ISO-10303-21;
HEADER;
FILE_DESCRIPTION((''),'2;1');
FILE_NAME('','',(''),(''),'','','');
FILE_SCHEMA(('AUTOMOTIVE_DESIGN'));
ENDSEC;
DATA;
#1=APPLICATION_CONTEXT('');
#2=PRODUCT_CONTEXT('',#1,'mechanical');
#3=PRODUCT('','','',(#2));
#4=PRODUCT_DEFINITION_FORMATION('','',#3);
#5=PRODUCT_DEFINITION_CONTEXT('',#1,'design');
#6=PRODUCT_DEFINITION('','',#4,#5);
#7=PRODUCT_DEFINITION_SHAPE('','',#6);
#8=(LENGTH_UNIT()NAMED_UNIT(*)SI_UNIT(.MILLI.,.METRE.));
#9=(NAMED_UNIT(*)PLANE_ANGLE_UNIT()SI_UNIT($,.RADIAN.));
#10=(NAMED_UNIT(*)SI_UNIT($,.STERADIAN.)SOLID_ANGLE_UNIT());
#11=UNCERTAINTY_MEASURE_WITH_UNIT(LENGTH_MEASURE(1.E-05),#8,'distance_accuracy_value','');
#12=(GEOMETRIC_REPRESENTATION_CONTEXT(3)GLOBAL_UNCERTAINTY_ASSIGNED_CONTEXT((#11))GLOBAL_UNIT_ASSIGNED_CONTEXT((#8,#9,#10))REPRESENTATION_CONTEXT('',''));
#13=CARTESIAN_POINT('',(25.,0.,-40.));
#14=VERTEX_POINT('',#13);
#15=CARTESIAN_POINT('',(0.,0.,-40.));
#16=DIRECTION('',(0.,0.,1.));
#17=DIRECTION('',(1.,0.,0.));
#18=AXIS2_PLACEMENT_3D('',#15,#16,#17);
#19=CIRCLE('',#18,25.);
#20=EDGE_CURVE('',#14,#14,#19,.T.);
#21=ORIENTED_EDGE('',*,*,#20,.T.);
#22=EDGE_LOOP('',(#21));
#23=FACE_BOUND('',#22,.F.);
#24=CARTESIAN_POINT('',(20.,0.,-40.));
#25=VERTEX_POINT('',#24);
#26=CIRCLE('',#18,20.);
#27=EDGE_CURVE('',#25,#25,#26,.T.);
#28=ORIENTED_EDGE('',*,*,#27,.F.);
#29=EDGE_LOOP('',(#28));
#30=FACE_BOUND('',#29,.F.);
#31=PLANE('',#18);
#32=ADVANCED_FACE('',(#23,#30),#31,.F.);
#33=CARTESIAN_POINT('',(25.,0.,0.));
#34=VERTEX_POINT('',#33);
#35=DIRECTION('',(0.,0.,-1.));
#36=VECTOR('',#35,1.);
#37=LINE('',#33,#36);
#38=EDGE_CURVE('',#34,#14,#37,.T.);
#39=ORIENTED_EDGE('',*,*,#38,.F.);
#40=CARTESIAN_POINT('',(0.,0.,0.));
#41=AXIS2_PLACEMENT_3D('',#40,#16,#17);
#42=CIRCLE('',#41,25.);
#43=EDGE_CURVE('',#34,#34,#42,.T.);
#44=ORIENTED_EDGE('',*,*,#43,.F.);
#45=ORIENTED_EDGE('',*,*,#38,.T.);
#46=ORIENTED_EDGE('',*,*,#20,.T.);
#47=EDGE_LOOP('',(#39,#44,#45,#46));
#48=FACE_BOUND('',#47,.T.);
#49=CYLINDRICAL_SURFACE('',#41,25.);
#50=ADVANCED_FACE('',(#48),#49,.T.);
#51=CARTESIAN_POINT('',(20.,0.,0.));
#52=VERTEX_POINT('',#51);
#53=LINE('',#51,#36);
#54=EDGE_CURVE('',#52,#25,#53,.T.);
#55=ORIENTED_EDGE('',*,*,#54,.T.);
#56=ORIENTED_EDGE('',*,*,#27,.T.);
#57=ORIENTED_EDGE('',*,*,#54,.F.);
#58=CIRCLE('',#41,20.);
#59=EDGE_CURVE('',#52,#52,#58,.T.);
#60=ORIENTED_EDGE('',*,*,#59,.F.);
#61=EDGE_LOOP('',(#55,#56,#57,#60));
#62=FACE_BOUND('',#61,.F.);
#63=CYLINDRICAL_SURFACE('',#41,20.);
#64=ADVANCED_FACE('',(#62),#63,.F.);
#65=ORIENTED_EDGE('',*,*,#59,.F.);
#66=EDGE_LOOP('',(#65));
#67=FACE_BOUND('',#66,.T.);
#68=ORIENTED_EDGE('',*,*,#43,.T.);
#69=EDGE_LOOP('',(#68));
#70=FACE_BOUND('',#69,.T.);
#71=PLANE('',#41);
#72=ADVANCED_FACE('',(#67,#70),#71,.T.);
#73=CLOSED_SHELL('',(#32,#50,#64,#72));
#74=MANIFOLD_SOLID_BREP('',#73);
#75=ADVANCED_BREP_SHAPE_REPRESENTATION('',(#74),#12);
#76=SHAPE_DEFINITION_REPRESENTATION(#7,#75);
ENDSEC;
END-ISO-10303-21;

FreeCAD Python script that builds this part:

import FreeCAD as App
import Part
import Sketcher

V = App.Vector

doc = App.newDocument("Part")
body = doc.addObject("PartDesign::Body", "Body")

# Sketch on XY plane
sketch1 = doc.addObject("Sketcher::SketchObject", "Sketch")
body.addObject(sketch1)
sketch1.AttachmentSupport = (doc.XY_Plane, [""])
sketch1.MapMode = "FlatFace"
sketch1.addGeometry([
    Part.Circle(V(0, 0, 0), V(0, 0, 1), 25),
    Part.Circle(V(0, 0, 0), V(0, 0, 1), 20),
], False)
sketch1.addConstraint([
    Sketcher.Constraint("Coincident", 0, 3, -1, 1),
    Sketcher.Constraint("Coincident", 1, 3, -1, 1),
    Sketcher.Constraint("Diameter", 0, 50.0),
    Sketcher.Constraint("Diameter", 1, 40.0),
])
pad1 = doc.addObject("PartDesign::Pad", "Pad")
body.addObject(pad1)
pad1.Profile = sketch1
pad1.Length = 40
pad1.Reversed = True

doc.recompute()
